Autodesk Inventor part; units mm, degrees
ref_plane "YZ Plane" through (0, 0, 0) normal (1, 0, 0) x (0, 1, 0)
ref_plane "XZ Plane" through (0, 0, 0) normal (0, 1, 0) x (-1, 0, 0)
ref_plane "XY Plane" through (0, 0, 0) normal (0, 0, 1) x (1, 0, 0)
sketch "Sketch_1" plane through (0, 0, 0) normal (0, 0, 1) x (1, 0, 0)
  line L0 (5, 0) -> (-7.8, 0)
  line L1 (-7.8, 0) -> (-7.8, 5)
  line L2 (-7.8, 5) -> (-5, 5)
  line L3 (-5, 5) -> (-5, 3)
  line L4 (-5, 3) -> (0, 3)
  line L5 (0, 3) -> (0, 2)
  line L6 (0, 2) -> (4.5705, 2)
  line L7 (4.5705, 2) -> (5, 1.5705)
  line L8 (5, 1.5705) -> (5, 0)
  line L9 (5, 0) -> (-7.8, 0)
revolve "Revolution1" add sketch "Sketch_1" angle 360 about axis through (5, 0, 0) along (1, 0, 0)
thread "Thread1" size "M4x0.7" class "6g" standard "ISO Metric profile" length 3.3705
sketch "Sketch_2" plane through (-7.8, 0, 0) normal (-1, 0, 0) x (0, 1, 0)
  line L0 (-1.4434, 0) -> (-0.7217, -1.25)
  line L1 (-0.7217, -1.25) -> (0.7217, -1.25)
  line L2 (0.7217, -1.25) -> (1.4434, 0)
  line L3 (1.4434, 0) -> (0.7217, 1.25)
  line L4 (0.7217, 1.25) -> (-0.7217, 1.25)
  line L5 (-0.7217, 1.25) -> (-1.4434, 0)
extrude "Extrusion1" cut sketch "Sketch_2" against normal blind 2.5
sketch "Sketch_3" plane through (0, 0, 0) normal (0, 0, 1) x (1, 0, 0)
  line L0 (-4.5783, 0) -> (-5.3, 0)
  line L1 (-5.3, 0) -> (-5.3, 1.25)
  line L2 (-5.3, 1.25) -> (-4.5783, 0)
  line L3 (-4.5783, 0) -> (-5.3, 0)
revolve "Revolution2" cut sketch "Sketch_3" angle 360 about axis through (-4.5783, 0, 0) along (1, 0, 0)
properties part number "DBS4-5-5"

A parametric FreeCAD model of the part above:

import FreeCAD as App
import Part
import Sketcher
from FreeCAD import Vector
Q = App.Units.Quantity


def add_polygon(sketch, points):
    """Adds a closed chain of lines whose ends are joined by coincident constraints."""
    first, n = sketch.GeometryCount, len(points)
    for a, b in zip(points, points[1:] + points[:1]):
        sketch.addGeometry(Part.LineSegment(App.Vector(*a, 0), App.Vector(*b, 0)), False)
    for i in range(n):
        sketch.addConstraint(Sketcher.Constraint("Coincident", first + i, 2, first + (i + 1) % n, 1))

doc = App.newDocument("Part")
body = doc.addObject("PartDesign::Body", "Body")

sketch1 = body.newObject("Sketcher::SketchObject", "Sketch")
sketch1.AttachmentSupport = (doc.getObject("XY_Plane"), [""])
sketch1.MapMode = "FlatFace"
add_polygon(sketch1, [(-7.8, 0), (5, 0), (5, 1.5705), (4.5705, 2), (0, 2), (0, 3), (-5, 3), (-5, 5), (-7.8, 5)])
sketch1.addConstraint([
    Sketcher.Constraint("Horizontal", 0),
    Sketcher.Constraint("Vertical", 1),
    Sketcher.Constraint("Horizontal", 3),
    Sketcher.Constraint("Vertical", 4),
    Sketcher.Constraint("Horizontal", 5),
    Sketcher.Constraint("Vertical", 6),
    Sketcher.Constraint("Horizontal", 7),
    Sketcher.Constraint("Vertical", 8),
    Sketcher.Constraint("PointOnObject", 0, 2, -1),
    Sketcher.Constraint("PointOnObject", 3, 2, -2),
    Sketcher.Constraint("Equal", 5, 8),
    Sketcher.Constraint("DistanceX", 5, 2, 5, 1, Q("5 mm")),
    Sketcher.Constraint("DistanceY", 4, 1, 4, 2, Q("1 mm")),
    Sketcher.Constraint("DistanceY", 6, 1, 6, 2, Q("2 mm")),
    Sketcher.Constraint("Angle", 2, Q("135 deg")),
    Sketcher.Constraint("DistanceX", 0, 1, 0, 2, Q("12.8 mm")),
    Sketcher.Constraint("DistanceX", 7, 2, 7, 1, Q("2.8 mm")),
    Sketcher.Constraint("DistanceX", 3, 2, 3, 1, Q("4.5705 mm")),
])
revolution = body.newObject("PartDesign::Revolution", "Revolution")
revolution.Profile = sketch1
revolution.ReferenceAxis = (sketch1, ["H_Axis"])
revolution.Angle = 360

sketch2 = body.newObject("Sketcher::SketchObject", "Sketch001")
sketch2.AttachmentSupport = (doc.getObject("YZ_Plane"), [""])
sketch2.MapMode = "FlatFace"
sketch2.AttachmentOffset = App.Placement(Vector(0, 0, -7.8), App.Rotation())
add_polygon(sketch2, [(-0.7217, -1.25), (-1.4434, 0), (-0.7217, 1.25), (0.7217, 1.25), (1.4434, 0), (0.7217, -1.25)])
sketch2.addConstraint([
    Sketcher.Constraint("Horizontal", 2),
    Sketcher.Constraint("Horizontal", 5),
    Sketcher.Constraint("Symmetric", 0, 2, 3, 2, -1, 1),
    Sketcher.Constraint("Symmetric", 1, 2, 4, 2, -1, 1),
    Sketcher.Constraint("PointOnObject", 0, 2, -1),
    Sketcher.Constraint("Parallel", 0, 3),
    Sketcher.Constraint("Vertical", 2, 2, 4, 2),
    Sketcher.Constraint("Angle", 0, Q("120.0004 deg")),
    Sketcher.Constraint("DistanceY", 4, 2, 2, 2, Q("2.5 mm")),
    Sketcher.Constraint("DistanceX", 2, 1, 2, 2, Q("1.4434 mm")),
])
pocket1 = body.newObject("PartDesign::Pocket", "Pocket")
pocket1.Profile = sketch2
pocket1.Length = 2.5
pocket1.Reversed = True

sketch3 = body.newObject("Sketcher::SketchObject", "Sketch002")
sketch3.AttachmentSupport = (doc.getObject("XY_Plane"), [""])
sketch3.MapMode = "FlatFace"
add_polygon(sketch3, [(-5.3, 0), (-4.5783, 0), (-5.3, 1.25)])
sketch3.addConstraint([
    Sketcher.Constraint("Horizontal", 0),
    Sketcher.Constraint("Vertical", 2),
    Sketcher.Constraint("PointOnObject", 0, 2, -1),
    Sketcher.Constraint("Angle", 1, Q("120.0004 deg")),
    Sketcher.Constraint("DistanceY", 2, 2, 2, 1, Q("1.25 mm")),
    Sketcher.Constraint("DistanceX", 1, 2, -1, 1, Q("5.3 mm")),
])
groove = body.newObject("PartDesign::Groove", "Groove")
groove.Profile = sketch3
groove.ReferenceAxis = (sketch3, ["H_Axis"])
groove.Angle = 360

doc.recompute()
